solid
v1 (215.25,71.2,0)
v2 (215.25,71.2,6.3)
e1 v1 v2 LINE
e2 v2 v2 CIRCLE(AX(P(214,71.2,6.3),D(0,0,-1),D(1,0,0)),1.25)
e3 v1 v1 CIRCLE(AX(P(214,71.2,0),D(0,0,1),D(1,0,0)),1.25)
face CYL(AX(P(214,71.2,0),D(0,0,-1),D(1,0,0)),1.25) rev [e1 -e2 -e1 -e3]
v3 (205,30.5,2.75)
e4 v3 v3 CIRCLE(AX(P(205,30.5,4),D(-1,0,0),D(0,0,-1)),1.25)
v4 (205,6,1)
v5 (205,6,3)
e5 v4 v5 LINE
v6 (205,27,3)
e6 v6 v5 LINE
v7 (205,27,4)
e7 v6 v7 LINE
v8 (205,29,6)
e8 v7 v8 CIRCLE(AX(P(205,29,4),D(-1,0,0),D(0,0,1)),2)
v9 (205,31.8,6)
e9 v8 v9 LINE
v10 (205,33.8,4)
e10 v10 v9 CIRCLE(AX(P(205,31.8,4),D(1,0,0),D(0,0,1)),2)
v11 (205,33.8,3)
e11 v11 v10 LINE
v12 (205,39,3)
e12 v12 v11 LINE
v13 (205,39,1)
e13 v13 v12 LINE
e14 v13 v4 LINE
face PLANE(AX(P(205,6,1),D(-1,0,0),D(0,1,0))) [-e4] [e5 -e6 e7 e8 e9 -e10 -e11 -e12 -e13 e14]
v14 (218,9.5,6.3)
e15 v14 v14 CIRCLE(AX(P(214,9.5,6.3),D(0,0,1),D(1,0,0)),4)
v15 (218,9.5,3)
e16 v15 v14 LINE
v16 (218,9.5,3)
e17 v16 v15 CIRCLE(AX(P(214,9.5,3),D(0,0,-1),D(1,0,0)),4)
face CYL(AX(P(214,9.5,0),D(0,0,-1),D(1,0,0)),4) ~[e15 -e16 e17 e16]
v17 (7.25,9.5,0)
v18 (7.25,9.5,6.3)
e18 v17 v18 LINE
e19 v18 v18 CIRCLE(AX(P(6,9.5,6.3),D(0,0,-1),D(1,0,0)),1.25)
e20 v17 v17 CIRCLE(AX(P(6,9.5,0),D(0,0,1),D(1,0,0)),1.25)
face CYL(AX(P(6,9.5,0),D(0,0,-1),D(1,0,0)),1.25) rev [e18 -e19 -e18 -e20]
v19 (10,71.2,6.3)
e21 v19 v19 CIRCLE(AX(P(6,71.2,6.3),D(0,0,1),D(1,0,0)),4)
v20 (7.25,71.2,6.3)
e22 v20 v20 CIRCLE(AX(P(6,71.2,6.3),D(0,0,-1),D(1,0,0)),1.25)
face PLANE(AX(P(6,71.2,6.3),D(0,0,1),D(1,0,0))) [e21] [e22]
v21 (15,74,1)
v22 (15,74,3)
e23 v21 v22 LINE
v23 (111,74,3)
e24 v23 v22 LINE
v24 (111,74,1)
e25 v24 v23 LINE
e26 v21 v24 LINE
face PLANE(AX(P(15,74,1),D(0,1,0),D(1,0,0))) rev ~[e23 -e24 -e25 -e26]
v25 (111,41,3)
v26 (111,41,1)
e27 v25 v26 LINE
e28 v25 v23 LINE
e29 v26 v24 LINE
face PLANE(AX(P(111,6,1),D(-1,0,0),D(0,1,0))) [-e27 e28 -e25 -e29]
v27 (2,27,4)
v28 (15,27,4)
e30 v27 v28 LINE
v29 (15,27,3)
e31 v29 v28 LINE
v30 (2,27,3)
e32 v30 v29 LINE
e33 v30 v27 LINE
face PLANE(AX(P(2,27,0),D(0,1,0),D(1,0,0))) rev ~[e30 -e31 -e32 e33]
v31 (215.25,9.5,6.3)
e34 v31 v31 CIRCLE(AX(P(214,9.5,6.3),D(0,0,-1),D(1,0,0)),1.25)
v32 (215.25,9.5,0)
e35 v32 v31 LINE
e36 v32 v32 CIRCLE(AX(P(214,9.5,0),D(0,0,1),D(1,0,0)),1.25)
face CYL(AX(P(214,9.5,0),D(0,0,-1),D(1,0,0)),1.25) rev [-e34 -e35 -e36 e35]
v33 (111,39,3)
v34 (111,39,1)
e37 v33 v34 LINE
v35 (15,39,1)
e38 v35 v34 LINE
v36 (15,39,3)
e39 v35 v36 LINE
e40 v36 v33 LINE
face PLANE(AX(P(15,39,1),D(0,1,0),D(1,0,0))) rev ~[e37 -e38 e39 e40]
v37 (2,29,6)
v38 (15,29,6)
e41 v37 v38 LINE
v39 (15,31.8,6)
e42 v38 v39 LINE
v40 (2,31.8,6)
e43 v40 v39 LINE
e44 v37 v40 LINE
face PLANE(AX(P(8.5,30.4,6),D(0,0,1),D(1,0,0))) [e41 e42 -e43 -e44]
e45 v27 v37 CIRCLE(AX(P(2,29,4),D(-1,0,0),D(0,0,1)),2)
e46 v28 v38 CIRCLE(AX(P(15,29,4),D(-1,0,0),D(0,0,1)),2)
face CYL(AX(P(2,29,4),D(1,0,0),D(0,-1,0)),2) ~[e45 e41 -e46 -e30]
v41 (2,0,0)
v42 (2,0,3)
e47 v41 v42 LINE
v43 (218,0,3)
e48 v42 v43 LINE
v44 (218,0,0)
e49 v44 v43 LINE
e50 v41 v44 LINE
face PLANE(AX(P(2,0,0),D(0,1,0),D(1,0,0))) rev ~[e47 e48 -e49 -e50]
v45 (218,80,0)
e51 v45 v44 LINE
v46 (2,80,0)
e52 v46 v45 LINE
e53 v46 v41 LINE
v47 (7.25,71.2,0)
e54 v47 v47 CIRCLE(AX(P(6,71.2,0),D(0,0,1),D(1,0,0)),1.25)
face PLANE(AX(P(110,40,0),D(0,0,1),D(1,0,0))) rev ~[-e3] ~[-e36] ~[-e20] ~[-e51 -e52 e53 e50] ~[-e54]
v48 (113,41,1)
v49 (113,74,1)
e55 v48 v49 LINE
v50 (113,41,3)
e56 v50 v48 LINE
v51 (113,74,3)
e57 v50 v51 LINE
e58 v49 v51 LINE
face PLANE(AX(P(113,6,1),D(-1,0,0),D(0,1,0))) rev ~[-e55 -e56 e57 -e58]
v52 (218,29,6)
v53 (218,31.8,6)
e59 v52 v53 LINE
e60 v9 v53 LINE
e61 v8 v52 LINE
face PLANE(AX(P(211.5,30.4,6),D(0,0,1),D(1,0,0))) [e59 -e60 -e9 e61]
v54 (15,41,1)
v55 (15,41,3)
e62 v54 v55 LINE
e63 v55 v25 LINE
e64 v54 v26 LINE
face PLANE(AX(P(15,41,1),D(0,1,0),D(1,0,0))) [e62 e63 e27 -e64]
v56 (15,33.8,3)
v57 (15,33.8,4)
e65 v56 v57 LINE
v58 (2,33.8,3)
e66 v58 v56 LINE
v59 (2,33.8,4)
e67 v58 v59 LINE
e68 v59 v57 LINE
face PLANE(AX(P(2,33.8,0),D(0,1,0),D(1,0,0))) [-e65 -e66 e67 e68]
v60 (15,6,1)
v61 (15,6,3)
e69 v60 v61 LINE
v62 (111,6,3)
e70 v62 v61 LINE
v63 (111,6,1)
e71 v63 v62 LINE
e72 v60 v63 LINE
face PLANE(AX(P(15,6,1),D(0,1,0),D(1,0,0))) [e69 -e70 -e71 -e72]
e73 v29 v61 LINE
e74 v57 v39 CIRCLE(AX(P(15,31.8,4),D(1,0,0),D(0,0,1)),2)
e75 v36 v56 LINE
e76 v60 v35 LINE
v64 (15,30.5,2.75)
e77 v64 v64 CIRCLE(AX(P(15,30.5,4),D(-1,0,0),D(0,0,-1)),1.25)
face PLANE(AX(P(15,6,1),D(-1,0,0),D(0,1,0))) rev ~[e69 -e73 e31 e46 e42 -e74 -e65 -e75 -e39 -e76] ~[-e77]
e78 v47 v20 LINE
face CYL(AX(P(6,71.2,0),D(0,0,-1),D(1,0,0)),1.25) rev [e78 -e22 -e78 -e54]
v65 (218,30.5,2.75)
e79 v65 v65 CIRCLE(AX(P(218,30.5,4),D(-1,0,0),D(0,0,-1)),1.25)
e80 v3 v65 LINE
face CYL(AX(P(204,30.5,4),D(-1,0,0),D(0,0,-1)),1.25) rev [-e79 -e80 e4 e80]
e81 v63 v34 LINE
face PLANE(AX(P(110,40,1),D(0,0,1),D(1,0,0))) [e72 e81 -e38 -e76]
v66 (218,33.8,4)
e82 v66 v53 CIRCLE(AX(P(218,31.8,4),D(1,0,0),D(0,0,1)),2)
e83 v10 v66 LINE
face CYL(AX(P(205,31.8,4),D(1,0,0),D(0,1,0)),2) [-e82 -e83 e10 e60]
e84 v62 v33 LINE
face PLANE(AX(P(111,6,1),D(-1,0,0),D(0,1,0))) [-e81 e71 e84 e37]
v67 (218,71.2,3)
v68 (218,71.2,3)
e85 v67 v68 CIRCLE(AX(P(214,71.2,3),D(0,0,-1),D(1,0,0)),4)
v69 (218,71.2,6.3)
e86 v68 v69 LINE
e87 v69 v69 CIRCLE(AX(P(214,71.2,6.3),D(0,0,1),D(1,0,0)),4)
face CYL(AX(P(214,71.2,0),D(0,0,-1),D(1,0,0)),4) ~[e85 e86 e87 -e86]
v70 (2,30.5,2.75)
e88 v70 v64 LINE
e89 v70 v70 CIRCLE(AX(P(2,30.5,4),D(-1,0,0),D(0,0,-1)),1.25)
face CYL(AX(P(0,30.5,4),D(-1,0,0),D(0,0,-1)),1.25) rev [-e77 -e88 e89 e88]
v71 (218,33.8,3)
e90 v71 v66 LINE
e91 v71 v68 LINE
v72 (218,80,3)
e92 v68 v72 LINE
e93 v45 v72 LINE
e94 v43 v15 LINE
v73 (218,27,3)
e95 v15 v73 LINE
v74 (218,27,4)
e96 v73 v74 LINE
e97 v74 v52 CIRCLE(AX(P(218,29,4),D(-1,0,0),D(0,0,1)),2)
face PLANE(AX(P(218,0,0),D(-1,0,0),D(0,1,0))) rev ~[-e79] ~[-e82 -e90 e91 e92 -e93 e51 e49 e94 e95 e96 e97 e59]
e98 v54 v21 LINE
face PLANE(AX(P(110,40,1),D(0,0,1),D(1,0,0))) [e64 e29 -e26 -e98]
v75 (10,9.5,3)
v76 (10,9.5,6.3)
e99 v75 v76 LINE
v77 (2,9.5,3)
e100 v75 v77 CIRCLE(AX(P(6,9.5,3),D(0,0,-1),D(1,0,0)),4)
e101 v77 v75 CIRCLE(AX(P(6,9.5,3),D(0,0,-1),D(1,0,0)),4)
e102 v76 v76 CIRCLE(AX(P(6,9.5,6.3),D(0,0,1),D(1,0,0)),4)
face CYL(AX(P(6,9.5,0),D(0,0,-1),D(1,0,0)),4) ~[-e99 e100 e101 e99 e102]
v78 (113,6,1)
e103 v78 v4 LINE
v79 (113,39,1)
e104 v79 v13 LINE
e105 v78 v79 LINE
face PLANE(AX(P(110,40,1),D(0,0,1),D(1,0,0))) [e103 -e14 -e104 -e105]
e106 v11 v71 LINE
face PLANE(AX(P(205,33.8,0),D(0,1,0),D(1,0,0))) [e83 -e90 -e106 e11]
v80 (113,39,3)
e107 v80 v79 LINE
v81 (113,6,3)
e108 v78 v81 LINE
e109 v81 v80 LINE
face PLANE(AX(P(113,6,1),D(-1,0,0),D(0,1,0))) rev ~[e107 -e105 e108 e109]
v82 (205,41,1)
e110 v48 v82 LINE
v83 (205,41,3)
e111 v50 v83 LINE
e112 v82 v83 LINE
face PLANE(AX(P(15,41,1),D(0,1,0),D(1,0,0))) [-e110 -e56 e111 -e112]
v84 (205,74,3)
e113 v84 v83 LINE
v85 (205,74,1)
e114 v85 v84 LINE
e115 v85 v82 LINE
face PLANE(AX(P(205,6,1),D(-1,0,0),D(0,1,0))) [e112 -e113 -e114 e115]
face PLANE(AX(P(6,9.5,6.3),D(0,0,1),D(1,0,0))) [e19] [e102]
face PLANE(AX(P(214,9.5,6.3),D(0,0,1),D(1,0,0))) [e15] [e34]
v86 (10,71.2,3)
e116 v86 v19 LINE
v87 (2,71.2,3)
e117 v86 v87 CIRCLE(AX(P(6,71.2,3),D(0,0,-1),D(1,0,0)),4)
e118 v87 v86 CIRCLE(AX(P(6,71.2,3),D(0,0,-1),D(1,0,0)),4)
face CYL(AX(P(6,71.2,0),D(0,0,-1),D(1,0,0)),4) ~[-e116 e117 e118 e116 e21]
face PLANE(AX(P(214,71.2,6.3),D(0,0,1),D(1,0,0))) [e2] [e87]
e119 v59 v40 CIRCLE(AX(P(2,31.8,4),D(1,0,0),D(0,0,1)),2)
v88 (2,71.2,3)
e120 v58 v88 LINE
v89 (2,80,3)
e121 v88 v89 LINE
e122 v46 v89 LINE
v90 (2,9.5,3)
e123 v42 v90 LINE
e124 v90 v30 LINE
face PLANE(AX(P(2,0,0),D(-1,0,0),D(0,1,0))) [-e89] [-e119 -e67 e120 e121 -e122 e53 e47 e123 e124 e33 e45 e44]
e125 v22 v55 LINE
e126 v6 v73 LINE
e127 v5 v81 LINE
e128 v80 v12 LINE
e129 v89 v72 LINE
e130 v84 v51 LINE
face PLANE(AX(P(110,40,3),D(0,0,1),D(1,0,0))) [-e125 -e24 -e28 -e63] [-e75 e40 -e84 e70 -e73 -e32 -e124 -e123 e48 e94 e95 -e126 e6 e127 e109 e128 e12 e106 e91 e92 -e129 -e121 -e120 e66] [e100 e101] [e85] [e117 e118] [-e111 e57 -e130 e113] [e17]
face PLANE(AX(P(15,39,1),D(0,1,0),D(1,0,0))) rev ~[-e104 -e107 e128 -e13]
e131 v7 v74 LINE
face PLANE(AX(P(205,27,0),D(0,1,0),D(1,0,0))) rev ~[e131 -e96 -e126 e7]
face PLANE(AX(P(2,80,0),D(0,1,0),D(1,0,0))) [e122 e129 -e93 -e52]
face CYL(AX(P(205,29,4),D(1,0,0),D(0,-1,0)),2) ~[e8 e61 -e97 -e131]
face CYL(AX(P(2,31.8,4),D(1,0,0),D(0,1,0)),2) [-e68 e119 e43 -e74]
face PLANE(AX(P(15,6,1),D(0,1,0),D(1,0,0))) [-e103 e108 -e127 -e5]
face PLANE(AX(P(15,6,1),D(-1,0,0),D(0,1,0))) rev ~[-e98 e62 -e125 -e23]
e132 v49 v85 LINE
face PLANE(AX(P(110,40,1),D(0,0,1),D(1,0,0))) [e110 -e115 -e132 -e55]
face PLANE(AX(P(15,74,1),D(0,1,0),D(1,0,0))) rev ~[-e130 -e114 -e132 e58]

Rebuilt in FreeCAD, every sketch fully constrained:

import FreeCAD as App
import Part
import Sketcher

V = App.Vector


def edges_at(feature, points):
    """Names of the edges that pass closest to the given points."""
    edges = feature.Shape.Edges
    near = lambda p: min(range(len(edges)), key=lambda i: edges[i].distToShape(Part.Vertex(*p))[0])
    return sorted({f"Edge{near(p) + 1}" for p in points})


def add_polygon(sketch, points):
    """Adds a closed chain of lines whose ends are joined by coincident constraints."""
    first, n = sketch.GeometryCount, len(points)
    for a, b in zip(points, points[1:] + points[:1]):
        sketch.addGeometry(Part.LineSegment(App.Vector(*a, 0), App.Vector(*b, 0)), False)
    for i in range(n):
        sketch.addConstraint(Sketcher.Constraint("Coincident", first + i, 2, first + (i + 1) % n, 1))

doc = App.newDocument("Part")
body = doc.addObject("PartDesign::Body", "Body")

sketch1 = body.newObject("Sketcher::SketchObject", "Sketch")
sketch1.AttachmentSupport = (doc.getObject("YZ_Plane"), [""])
sketch1.MapMode = "FlatFace"
sketch1.addGeometry(Part.Circle(V(30.5, 4, 0), V(0, 0, 1), 1.25), False)
sketch1.addConstraint([
    Sketcher.Constraint("Diameter", 0, 2.5),
    Sketcher.Constraint("DistanceY", -1, 1, 0, 3, 4.0),
    Sketcher.Constraint("DistanceX", -1, 1, 0, 3, 30.5),
])
pad1 = body.newObject("PartDesign::Pad", "Pad")
pad1.Profile = sketch1
pad1.Length = 20
body2 = doc.addObject("PartDesign::Body", "Body001")
body2.AllowCompound = True

sketch2 = body2.newObject("Sketcher::SketchObject", "Sketch001")
sketch2.AttachmentSupport = (doc.getObject("YZ_Plane001"), [""])
sketch2.MapMode = "FlatFace"
sketch2.AttachmentOffset = App.Placement(V(0, 0, 204), App.Rotation())
sketch2.addGeometry(Part.Circle(V(30.5, 4, 0), V(0, 0, 1), 1.25), False)
sketch2.addConstraint([
    Sketcher.Constraint("Diameter", 0, 2.5),
    Sketcher.Constraint("DistanceY", -1, 1, 0, 3, 4.0),
    Sketcher.Constraint("DistanceX", -1, 1, 0, 3, 30.5),
])
pad2 = body2.newObject("PartDesign::Pad", "Pad001")
pad2.Profile = sketch2
pad2.Length = 20
doc.recompute()

boolean = body2.newObject("PartDesign::Boolean", "Boolean")
boolean.Type = "Fuse"
boolean.addObjects([body])
body3 = doc.addObject("PartDesign::Body", "Body002")

sketch3 = body3.newObject("Sketcher::SketchObject", "Sketch002")
sketch3.AttachmentSupport = (doc.getObject("XY_Plane002"), [""])
sketch3.MapMode = "FlatFace"
add_polygon(sketch3, [(2, 35.8), (2, 29), (15, 29), (15, 35.8)])
sketch3.addConstraint([
    Sketcher.Constraint("Vertical", 0),
    Sketcher.Constraint("Horizontal", 1),
    Sketcher.Constraint("Vertical", 2),
    Sketcher.Constraint("Horizontal", 3),
    Sketcher.Constraint("DistanceX", 1, 1, 1, 2, 13.0),
    Sketcher.Constraint("DistanceY", 0, 2, 0, 1, 6.8),
    Sketcher.Constraint("DistanceX", -1, 1, 0, 2, 2.0),
    Sketcher.Constraint("DistanceY", -1, 1, 0, 2, 29.0),
])
pad3 = body3.newObject("PartDesign::Pad", "Pad002")
pad3.Profile = sketch3
pad3.Length = 6
doc.recompute()

fillet = body3.newObject("PartDesign::Fillet", "Fillet")
fillet.Base = (pad3, edges_at(pad3, [(8.5, 29, 6), (8.5, 35.8, 6)]))
fillet.Radius = 2
body4 = doc.addObject("PartDesign::Body", "Body003")
doc.recompute()

body3.Placement = App.Placement(V(0, -2, 0), App.Rotation(V(0, 0, 1), 0))
boolean2 = body4.newObject("PartDesign::Boolean", "Boolean001")
boolean2.Type = "Fuse"
boolean2.addObjects([body3])
body5 = doc.addObject("PartDesign::Body", "Body004")

sketch4 = body5.newObject("Sketcher::SketchObject", "Sketch003")
sketch4.AttachmentSupport = (doc.getObject("XY_Plane004"), [""])
sketch4.MapMode = "FlatFace"
sketch4.addGeometry(Part.Circle(V(214, 9.5, 0), V(0, 0, 1), 1.25), False)
sketch4.addConstraint([
    Sketcher.Constraint("Diameter", 0, 2.5),
    Sketcher.Constraint("DistanceX", -1, 1, 0, 3, 214.0),
    Sketcher.Constraint("DistanceY", -1, 1, 0, 3, 9.5),
])
pad4 = body5.newObject("PartDesign::Pad", "Pad003")
pad4.Profile = sketch4
pad4.Length = 7
body6 = doc.addObject("PartDesign::Body", "Body005")

sketch5 = body6.newObject("Sketcher::SketchObject", "Sketch004")
sketch5.AttachmentSupport = (doc.getObject("XY_Plane005"), [""])
sketch5.MapMode = "FlatFace"
sketch5.addGeometry(Part.Circle(V(6, 71.2, 0), V(0, 0, 1), 1.25), False)
sketch5.addConstraint([
    Sketcher.Constraint("Diameter", 0, 2.5),
    Sketcher.Constraint("DistanceX", -1, 1, 0, 3, 6.0),
    Sketcher.Constraint("DistanceY", -1, 1, 0, 3, 71.2),
])
pad5 = body6.newObject("PartDesign::Pad", "Pad004")
pad5.Profile = sketch5
pad5.Length = 7
body7 = doc.addObject("PartDesign::Body", "Body006")

sketch6 = body7.newObject("Sketcher::SketchObject", "Sketch005")
sketch6.AttachmentSupport = (doc.getObject("XY_Plane006"), [""])
sketch6.MapMode = "FlatFace"
sketch6.addGeometry(Part.Circle(V(214, 71.2, 0), V(0, 0, 1), 1.25), False)
sketch6.addConstraint([
    Sketcher.Constraint("Diameter", 0, 2.5),
    Sketcher.Constraint("DistanceX", -1, 1, 0, 3, 214.0),
    Sketcher.Constraint("DistanceY", -1, 1, 0, 3, 71.2),
])
pad6 = body7.newObject("PartDesign::Pad", "Pad005")
pad6.Profile = sketch6
pad6.Length = 7
body8 = doc.addObject("PartDesign::Body", "Body007")

sketch7 = body8.newObject("Sketcher::SketchObject", "Sketch006")
sketch7.AttachmentSupport = (doc.getObject("XY_Plane007"), [""])
sketch7.MapMode = "FlatFace"
sketch7.addGeometry(Part.Circle(V(6, 9.5, 0), V(0, 0, 1), 1.25), False)
sketch7.addConstraint([
    Sketcher.Constraint("Diameter", 0, 2.5),
    Sketcher.Constraint("DistanceX", -1, 1, 0, 3, 6.0),
    Sketcher.Constraint("DistanceY", -1, 1, 0, 3, 9.5),
])
pad7 = body8.newObject("PartDesign::Pad", "Pad006")
pad7.Profile = sketch7
pad7.Length = 7
body9 = doc.addObject("PartDesign::Body", "Body008")
body9.AllowCompound = True

sketch8 = body9.newObject("Sketcher::SketchObject", "Sketch007")
sketch8.AttachmentSupport = (doc.getObject("XY_Plane008"), [""])
sketch8.MapMode = "FlatFace"
sketch8.AttachmentOffset = App.Placement(V(0, 0, 1), App.Rotation())
add_polygon(sketch8, [(15, 74), (15, 6), (205, 6), (205, 74)])
sketch8.addConstraint([
    Sketcher.Constraint("Vertical", 0),
    Sketcher.Constraint("Horizontal", 1),
    Sketcher.Constraint("Vertical", 2),
    Sketcher.Constraint("Horizontal", 3),
    Sketcher.Constraint("DistanceX", 1, 1, 1, 2, 190.0),
    Sketcher.Constraint("DistanceY", 0, 2, 0, 1, 68.0),
    Sketcher.Constraint("DistanceX", -1, 1, 0, 2, 15.0),
    Sketcher.Constraint("DistanceY", -1, 1, 0, 2, 6.0),
])
pad8 = body9.newObject("PartDesign::Pad", "Pad007")
pad8.Profile = sketch8
pad8.Length = 3
doc.recompute()

boolean3 = body9.newObject("PartDesign::Boolean", "Boolean002")
boolean3.Type = "Fuse"
boolean3.addObjects([body5])
doc.recompute()

boolean4 = body9.newObject("PartDesign::Boolean", "Boolean003")
boolean4.Type = "Fuse"
boolean4.addObjects([body6])
doc.recompute()

boolean5 = body9.newObject("PartDesign::Boolean", "Boolean004")
boolean5.Type = "Fuse"
boolean5.addObjects([body7])
doc.recompute()

boolean6 = body9.newObject("PartDesign::Boolean", "Boolean005")
boolean6.Type = "Fuse"
boolean6.addObjects([body8])
body10 = doc.addObject("PartDesign::Body", "Body009")

sketch9 = body10.newObject("Sketcher::SketchObject", "Sketch008")
sketch9.AttachmentSupport = (doc.getObject("XY_Plane009"), [""])
sketch9.MapMode = "FlatFace"
sketch9.addGeometry(Part.Circle(V(6, 71.2, 0), V(0, 0, 1), 4), False)
sketch9.addConstraint([
    Sketcher.Constraint("Diameter", 0, 8.0),
    Sketcher.Constraint("DistanceX", -1, 1, 0, 3, 6.0),
    Sketcher.Constraint("DistanceY", -1, 1, 0, 3, 71.2),
])
pad9 = body10.newObject("PartDesign::Pad", "Pad008")
pad9.Profile = sketch9
pad9.Length = 6.3
body11 = doc.addObject("PartDesign::Body", "Body010")

sketch10 = body11.newObject("Sketcher::SketchObject", "Sketch009")
sketch10.AttachmentSupport = (doc.getObject("XY_Plane010"), [""])
sketch10.MapMode = "FlatFace"
sketch10.addGeometry(Part.Circle(V(214, 71.2, 0), V(0, 0, 1), 4), False)
sketch10.addConstraint([
    Sketcher.Constraint("Diameter", 0, 8.0),
    Sketcher.Constraint("DistanceX", -1, 1, 0, 3, 214.0),
    Sketcher.Constraint("DistanceY", -1, 1, 0, 3, 71.2),
])
pad10 = body11.newObject("PartDesign::Pad", "Pad009")
pad10.Profile = sketch10
pad10.Length = 6.3
body12 = doc.addObject("PartDesign::Body", "Body011")

sketch11 = body12.newObject("Sketcher::SketchObject", "Sketch010")
sketch11.AttachmentSupport = (doc.getObject("XY_Plane011"), [""])
sketch11.MapMode = "FlatFace"
sketch11.addGeometry(Part.Circle(V(6, 9.5, 0), V(0, 0, 1), 4), False)
sketch11.addConstraint([
    Sketcher.Constraint("Diameter", 0, 8.0),
    Sketcher.Constraint("DistanceX", -1, 1, 0, 3, 6.0),
    Sketcher.Constraint("DistanceY", -1, 1, 0, 3, 9.5),
])
pad11 = body12.newObject("PartDesign::Pad", "Pad010")
pad11.Profile = sketch11
pad11.Length = 6.3
body13 = doc.addObject("PartDesign::Body", "Body012")

sketch12 = body13.newObject("Sketcher::SketchObject", "Sketch011")
sketch12.AttachmentSupport = (doc.getObject("XY_Plane012"), [""])
sketch12.MapMode = "FlatFace"
add_polygon(sketch12, [(2, 80), (2, 0), (218, 0), (218, 80)])
sketch12.addConstraint([
    Sketcher.Constraint("Vertical", 0),
    Sketcher.Constraint("Horizontal", 1),
    Sketcher.Constraint("Vertical", 2),
    Sketcher.Constraint("Horizontal", 3),
    Sketcher.Constraint("PointOnObject", 0, 2, -1),
    Sketcher.Constraint("DistanceX", 1, 1, 1, 2, 216.0),
    Sketcher.Constraint("DistanceY", 0, 2, 0, 1, 80.0),
    Sketcher.Constraint("DistanceX", -1, 1, 0, 2, 2.0),
])
pad12 = body13.newObject("PartDesign::Pad", "Pad011")
pad12.Profile = sketch12
pad12.Length = 3
body14 = doc.addObject("PartDesign::Body", "Body013")
body14.AllowCompound = True

sketch13 = body14.newObject("Sketcher::SketchObject", "Sketch012")
sketch13.AttachmentSupport = (doc.getObject("XY_Plane013"), [""])
sketch13.MapMode = "FlatFace"
sketch13.addGeometry(Part.Circle(V(214, 9.5, 0), V(0, 0, 1), 4), False)
sketch13.addConstraint([
    Sketcher.Constraint("Diameter", 0, 8.0),
    Sketcher.Constraint("DistanceX", -1, 1, 0, 3, 214.0),
    Sketcher.Constraint("DistanceY", -1, 1, 0, 3, 9.5),
])
pad13 = body14.newObject("PartDesign::Pad", "Pad012")
pad13.Profile = sketch13
pad13.Length = 6.3
doc.recompute()

boolean7 = body14.newObject("PartDesign::Boolean", "Boolean006")
boolean7.Type = "Fuse"
boolean7.addObjects([body10])
doc.recompute()

boolean8 = body14.newObject("PartDesign::Boolean", "Boolean007")
boolean8.Type = "Fuse"
boolean8.addObjects([body11])
doc.recompute()

boolean9 = body14.newObject("PartDesign::Boolean", "Boolean008")
boolean9.Type = "Fuse"
boolean9.addObjects([body12])
doc.recompute()

boolean10 = body14.newObject("PartDesign::Boolean", "Boolean009")
boolean10.Type = "Fuse"
boolean10.addObjects([body13])
doc.recompute()

boolean11 = body14.newObject("PartDesign::Boolean", "Boolean010")
boolean11.Type = "Cut"
boolean11.addObjects([body9])
body15 = doc.addObject("PartDesign::Body", "Body014")

sketch14 = body15.newObject("Sketcher::SketchObject", "Sketch013")
sketch14.AttachmentSupport = (doc.getObject("XY_Plane014"), [""])
sketch14.MapMode = "FlatFace"
sketch14.AttachmentOffset = App.Placement(V(0, 0, 1), App.Rotation())
add_polygon(sketch14, [(111, 74), (111, 6), (113, 6), (113, 74)])
sketch14.addConstraint([
    Sketcher.Constraint("Vertical", 0),
    Sketcher.Constraint("Horizontal", 1),
    Sketcher.Constraint("Vertical", 2),
    Sketcher.Constraint("Horizontal", 3),
    Sketcher.Constraint("DistanceX", 1, 1, 1, 2, 2.0),
    Sketcher.Constraint("DistanceY", 0, 2, 0, 1, 68.0),
    Sketcher.Constraint("DistanceX", -1, 1, 0, 2, 111.0),
    Sketcher.Constraint("DistanceY", -1, 1, 0, 2, 6.0),
])
pad14 = body15.newObject("PartDesign::Pad", "Pad013")
pad14.Profile = sketch14
pad14.Length = 2
body16 = doc.addObject("PartDesign::Body", "Body015")

sketch15 = body16.newObject("Sketcher::SketchObject", "Sketch014")
sketch15.AttachmentSupport = (doc.getObject("XY_Plane015"), [""])
sketch15.MapMode = "FlatFace"
sketch15.AttachmentOffset = App.Placement(V(0, 0, 1), App.Rotation())
add_polygon(sketch15, [(15, 41), (15, 39), (205, 39), (205, 41)])
sketch15.addConstraint([
    Sketcher.Constraint("Vertical", 0),
    Sketcher.Constraint("Horizontal", 1),
    Sketcher.Constraint("Vertical", 2),
    Sketcher.Constraint("Horizontal", 3),
    Sketcher.Constraint("DistanceX", 1, 1, 1, 2, 190.0),
    Sketcher.Constraint("DistanceY", 0, 2, 0, 1, 2.0),
    Sketcher.Constraint("DistanceX", -1, 1, 0, 2, 15.0),
    Sketcher.Constraint("DistanceY", -1, 1, 0, 2, 39.0),
])
pad15 = body16.newObject("PartDesign::Pad", "Pad014")
pad15.Profile = sketch15
pad15.Length = 2
body17 = doc.addObject("PartDesign::Body", "Body016")

sketch16 = body17.newObject("Sketcher::SketchObject", "Sketch015")
sketch16.AttachmentSupport = (doc.getObject("XY_Plane016"), [""])
sketch16.MapMode = "FlatFace"
add_polygon(sketch16, [(2, 35.8), (2, 29), (15, 29), (15, 35.8)])
sketch16.addConstraint([
    Sketcher.Constraint("Vertical", 0),
    Sketcher.Constraint("Horizontal", 1),
    Sketcher.Constraint("Vertical", 2),
    Sketcher.Constraint("Horizontal", 3),
    Sketcher.Constraint("DistanceX", 1, 1, 1, 2, 13.0),
    Sketcher.Constraint("DistanceY", 0, 2, 0, 1, 6.8),
    Sketcher.Constraint("DistanceX", -1, 1, 0, 2, 2.0),
    Sketcher.Constraint("DistanceY", -1, 1, 0, 2, 29.0),
])
pad16 = body17.newObject("PartDesign::Pad", "Pad015")
pad16.Profile = sketch16
pad16.Length = 6
doc.recompute()

fillet2 = body17.newObject("PartDesign::Fillet", "Fillet001")
fillet2.Base = (pad16, edges_at(pad16, [(8.5, 29, 6), (8.5, 35.8, 6)]))
fillet2.Radius = 2
body18 = doc.addObject("PartDesign::Body", "Body017")
body18.AllowCompound = True
doc.recompute()

body17.Placement = App.Placement(V(203, -2, 0), App.Rotation(V(0, 0, 1), 0))
boolean12 = body18.newObject("PartDesign::Boolean", "Boolean011")
boolean12.Type = "Fuse"
boolean12.addObjects([body17])
doc.recompute()

boolean13 = body18.newObject("PartDesign::Boolean", "Boolean012")
boolean13.Type = "Fuse"
boolean13.addObjects([body4])
doc.recompute()

boolean14 = body18.newObject("PartDesign::Boolean", "Boolean013")
boolean14.Type = "Fuse"
boolean14.addObjects([body14])
doc.recompute()

boolean15 = body18.newObject("PartDesign::Boolean", "Boolean014")
boolean15.Type = "Fuse"
boolean15.addObjects([body15])
doc.recompute()

boolean16 = body18.newObject("PartDesign::Boolean", "Boolean015")
boolean16.Type = "Fuse"
boolean16.addObjects([body16])
doc.recompute()

boolean17 = body18.newObject("PartDesign::Boolean", "Boolean016")
boolean17.Type = "Cut"
boolean17.addObjects([body2])

doc.recompute()
